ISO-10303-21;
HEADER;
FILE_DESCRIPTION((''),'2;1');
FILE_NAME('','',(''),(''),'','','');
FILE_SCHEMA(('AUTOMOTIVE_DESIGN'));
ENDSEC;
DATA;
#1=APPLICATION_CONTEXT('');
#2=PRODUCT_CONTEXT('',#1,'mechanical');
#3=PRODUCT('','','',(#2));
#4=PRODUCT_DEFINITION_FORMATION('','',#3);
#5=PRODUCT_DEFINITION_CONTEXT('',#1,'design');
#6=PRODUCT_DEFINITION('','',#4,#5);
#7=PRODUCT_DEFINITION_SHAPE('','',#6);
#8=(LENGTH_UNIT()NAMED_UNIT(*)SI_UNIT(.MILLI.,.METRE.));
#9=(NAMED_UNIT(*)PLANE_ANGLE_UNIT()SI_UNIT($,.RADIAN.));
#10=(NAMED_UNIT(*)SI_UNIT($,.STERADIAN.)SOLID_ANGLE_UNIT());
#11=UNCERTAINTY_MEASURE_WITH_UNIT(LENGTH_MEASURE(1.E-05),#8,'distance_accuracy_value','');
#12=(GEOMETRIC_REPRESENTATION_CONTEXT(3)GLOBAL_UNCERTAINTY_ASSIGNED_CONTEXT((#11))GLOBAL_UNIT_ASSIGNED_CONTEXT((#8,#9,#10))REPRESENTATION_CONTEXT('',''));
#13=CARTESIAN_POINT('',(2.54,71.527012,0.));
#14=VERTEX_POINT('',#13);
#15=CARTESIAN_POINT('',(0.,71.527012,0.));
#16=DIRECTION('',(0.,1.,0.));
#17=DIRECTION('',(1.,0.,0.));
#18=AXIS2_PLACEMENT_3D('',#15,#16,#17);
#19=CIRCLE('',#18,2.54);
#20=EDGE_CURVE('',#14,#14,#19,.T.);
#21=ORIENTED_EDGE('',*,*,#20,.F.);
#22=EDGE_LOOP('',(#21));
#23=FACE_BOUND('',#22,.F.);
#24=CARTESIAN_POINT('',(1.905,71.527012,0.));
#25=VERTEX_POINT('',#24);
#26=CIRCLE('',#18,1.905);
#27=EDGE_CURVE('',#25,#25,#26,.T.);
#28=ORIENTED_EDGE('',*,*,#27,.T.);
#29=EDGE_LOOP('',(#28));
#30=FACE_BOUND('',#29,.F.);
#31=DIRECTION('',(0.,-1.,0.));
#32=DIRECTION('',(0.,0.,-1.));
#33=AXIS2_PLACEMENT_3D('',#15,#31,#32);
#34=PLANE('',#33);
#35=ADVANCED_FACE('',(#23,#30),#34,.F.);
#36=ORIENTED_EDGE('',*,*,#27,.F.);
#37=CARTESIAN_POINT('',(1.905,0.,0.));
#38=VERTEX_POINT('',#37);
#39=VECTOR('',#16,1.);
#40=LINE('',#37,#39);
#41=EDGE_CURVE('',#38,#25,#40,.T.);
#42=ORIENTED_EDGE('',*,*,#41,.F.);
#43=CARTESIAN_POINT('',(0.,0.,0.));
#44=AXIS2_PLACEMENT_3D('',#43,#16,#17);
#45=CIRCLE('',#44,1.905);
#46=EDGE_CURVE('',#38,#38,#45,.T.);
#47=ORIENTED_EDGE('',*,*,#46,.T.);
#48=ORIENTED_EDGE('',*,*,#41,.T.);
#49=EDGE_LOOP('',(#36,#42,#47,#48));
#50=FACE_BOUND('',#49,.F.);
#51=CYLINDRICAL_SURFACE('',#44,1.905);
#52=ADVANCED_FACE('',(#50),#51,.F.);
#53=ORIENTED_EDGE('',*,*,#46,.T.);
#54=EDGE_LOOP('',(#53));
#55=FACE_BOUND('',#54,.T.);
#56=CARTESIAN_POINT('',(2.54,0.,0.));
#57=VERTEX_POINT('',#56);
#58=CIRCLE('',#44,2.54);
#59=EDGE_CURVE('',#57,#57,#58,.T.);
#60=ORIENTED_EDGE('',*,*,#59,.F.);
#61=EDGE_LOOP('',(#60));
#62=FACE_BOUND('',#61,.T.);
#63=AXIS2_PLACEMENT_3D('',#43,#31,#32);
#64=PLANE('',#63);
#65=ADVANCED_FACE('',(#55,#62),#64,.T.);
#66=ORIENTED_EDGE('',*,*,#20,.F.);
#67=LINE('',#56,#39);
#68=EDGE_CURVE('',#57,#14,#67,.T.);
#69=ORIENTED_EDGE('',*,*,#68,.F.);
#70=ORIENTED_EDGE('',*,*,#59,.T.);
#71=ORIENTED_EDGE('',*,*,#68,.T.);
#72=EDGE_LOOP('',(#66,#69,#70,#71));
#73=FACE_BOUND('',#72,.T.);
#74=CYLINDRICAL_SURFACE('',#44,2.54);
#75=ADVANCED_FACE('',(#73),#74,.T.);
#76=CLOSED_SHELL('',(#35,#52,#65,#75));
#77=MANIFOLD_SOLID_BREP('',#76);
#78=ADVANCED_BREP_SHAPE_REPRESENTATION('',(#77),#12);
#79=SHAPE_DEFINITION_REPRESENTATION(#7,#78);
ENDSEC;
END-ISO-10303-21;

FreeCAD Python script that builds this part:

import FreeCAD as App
import Part
import Sketcher
Q = App.Units.Quantity

doc = App.newDocument("Part")
body = doc.addObject("PartDesign::Body", "Body")

# Sketch on XZ plane
sketch1 = body.newObject("Sketcher::SketchObject", "Sketch")
sketch1.AttachmentSupport = (doc.getObject("XZ_Plane"), [""])
sketch1.MapMode = "FlatFace"
sketch1.addGeometry(Part.Circle(App.Vector(0, 0, 0), App.Vector(0, 0, 1), 2.5), False)
sketch1.addGeometry(Part.Circle(App.Vector(0, 0, 0), App.Vector(0, 0, 1), 1.9), False)
sketch1.addConstraint(Sketcher.Constraint("Coincident", 0, 3, -1, 1))
sketch1.addConstraint(Sketcher.Constraint("Coincident", 1, 3, -1, 1))
sketch1.addConstraint(Sketcher.Constraint("Diameter", 0, Q("0.2 in")))
sketch1.addConstraint(Sketcher.Constraint("Diameter", 1, Q("0.15 in")))

# Sketch on XY plane
sketch2 = body.newObject("Sketcher::SketchObject", "Sketch001")
sketch2.AttachmentSupport = (doc.getObject("XY_Plane"), [""])
sketch2.MapMode = "FlatFace"
sketch2.addGeometry(Part.LineSegment(App.Vector(0, 0, 0), App.Vector(0, 72, 0)), False)
sketch2.addConstraint(Sketcher.Constraint("Vertical", 0))
sketch2.addConstraint(Sketcher.Constraint("Coincident", 0, 1, -1, 1))
sketch2.addConstraint(Sketcher.Constraint("DistanceY", 0, 1, 0, 2, Q("71.527012 mm")))
doc.recompute()

additivepipe = body.newObject("PartDesign::AdditivePipe", "AdditivePipe")
additivepipe.Profile = sketch1
additivepipe.Spine = (sketch2, ["Edge1"])

doc.recompute()
